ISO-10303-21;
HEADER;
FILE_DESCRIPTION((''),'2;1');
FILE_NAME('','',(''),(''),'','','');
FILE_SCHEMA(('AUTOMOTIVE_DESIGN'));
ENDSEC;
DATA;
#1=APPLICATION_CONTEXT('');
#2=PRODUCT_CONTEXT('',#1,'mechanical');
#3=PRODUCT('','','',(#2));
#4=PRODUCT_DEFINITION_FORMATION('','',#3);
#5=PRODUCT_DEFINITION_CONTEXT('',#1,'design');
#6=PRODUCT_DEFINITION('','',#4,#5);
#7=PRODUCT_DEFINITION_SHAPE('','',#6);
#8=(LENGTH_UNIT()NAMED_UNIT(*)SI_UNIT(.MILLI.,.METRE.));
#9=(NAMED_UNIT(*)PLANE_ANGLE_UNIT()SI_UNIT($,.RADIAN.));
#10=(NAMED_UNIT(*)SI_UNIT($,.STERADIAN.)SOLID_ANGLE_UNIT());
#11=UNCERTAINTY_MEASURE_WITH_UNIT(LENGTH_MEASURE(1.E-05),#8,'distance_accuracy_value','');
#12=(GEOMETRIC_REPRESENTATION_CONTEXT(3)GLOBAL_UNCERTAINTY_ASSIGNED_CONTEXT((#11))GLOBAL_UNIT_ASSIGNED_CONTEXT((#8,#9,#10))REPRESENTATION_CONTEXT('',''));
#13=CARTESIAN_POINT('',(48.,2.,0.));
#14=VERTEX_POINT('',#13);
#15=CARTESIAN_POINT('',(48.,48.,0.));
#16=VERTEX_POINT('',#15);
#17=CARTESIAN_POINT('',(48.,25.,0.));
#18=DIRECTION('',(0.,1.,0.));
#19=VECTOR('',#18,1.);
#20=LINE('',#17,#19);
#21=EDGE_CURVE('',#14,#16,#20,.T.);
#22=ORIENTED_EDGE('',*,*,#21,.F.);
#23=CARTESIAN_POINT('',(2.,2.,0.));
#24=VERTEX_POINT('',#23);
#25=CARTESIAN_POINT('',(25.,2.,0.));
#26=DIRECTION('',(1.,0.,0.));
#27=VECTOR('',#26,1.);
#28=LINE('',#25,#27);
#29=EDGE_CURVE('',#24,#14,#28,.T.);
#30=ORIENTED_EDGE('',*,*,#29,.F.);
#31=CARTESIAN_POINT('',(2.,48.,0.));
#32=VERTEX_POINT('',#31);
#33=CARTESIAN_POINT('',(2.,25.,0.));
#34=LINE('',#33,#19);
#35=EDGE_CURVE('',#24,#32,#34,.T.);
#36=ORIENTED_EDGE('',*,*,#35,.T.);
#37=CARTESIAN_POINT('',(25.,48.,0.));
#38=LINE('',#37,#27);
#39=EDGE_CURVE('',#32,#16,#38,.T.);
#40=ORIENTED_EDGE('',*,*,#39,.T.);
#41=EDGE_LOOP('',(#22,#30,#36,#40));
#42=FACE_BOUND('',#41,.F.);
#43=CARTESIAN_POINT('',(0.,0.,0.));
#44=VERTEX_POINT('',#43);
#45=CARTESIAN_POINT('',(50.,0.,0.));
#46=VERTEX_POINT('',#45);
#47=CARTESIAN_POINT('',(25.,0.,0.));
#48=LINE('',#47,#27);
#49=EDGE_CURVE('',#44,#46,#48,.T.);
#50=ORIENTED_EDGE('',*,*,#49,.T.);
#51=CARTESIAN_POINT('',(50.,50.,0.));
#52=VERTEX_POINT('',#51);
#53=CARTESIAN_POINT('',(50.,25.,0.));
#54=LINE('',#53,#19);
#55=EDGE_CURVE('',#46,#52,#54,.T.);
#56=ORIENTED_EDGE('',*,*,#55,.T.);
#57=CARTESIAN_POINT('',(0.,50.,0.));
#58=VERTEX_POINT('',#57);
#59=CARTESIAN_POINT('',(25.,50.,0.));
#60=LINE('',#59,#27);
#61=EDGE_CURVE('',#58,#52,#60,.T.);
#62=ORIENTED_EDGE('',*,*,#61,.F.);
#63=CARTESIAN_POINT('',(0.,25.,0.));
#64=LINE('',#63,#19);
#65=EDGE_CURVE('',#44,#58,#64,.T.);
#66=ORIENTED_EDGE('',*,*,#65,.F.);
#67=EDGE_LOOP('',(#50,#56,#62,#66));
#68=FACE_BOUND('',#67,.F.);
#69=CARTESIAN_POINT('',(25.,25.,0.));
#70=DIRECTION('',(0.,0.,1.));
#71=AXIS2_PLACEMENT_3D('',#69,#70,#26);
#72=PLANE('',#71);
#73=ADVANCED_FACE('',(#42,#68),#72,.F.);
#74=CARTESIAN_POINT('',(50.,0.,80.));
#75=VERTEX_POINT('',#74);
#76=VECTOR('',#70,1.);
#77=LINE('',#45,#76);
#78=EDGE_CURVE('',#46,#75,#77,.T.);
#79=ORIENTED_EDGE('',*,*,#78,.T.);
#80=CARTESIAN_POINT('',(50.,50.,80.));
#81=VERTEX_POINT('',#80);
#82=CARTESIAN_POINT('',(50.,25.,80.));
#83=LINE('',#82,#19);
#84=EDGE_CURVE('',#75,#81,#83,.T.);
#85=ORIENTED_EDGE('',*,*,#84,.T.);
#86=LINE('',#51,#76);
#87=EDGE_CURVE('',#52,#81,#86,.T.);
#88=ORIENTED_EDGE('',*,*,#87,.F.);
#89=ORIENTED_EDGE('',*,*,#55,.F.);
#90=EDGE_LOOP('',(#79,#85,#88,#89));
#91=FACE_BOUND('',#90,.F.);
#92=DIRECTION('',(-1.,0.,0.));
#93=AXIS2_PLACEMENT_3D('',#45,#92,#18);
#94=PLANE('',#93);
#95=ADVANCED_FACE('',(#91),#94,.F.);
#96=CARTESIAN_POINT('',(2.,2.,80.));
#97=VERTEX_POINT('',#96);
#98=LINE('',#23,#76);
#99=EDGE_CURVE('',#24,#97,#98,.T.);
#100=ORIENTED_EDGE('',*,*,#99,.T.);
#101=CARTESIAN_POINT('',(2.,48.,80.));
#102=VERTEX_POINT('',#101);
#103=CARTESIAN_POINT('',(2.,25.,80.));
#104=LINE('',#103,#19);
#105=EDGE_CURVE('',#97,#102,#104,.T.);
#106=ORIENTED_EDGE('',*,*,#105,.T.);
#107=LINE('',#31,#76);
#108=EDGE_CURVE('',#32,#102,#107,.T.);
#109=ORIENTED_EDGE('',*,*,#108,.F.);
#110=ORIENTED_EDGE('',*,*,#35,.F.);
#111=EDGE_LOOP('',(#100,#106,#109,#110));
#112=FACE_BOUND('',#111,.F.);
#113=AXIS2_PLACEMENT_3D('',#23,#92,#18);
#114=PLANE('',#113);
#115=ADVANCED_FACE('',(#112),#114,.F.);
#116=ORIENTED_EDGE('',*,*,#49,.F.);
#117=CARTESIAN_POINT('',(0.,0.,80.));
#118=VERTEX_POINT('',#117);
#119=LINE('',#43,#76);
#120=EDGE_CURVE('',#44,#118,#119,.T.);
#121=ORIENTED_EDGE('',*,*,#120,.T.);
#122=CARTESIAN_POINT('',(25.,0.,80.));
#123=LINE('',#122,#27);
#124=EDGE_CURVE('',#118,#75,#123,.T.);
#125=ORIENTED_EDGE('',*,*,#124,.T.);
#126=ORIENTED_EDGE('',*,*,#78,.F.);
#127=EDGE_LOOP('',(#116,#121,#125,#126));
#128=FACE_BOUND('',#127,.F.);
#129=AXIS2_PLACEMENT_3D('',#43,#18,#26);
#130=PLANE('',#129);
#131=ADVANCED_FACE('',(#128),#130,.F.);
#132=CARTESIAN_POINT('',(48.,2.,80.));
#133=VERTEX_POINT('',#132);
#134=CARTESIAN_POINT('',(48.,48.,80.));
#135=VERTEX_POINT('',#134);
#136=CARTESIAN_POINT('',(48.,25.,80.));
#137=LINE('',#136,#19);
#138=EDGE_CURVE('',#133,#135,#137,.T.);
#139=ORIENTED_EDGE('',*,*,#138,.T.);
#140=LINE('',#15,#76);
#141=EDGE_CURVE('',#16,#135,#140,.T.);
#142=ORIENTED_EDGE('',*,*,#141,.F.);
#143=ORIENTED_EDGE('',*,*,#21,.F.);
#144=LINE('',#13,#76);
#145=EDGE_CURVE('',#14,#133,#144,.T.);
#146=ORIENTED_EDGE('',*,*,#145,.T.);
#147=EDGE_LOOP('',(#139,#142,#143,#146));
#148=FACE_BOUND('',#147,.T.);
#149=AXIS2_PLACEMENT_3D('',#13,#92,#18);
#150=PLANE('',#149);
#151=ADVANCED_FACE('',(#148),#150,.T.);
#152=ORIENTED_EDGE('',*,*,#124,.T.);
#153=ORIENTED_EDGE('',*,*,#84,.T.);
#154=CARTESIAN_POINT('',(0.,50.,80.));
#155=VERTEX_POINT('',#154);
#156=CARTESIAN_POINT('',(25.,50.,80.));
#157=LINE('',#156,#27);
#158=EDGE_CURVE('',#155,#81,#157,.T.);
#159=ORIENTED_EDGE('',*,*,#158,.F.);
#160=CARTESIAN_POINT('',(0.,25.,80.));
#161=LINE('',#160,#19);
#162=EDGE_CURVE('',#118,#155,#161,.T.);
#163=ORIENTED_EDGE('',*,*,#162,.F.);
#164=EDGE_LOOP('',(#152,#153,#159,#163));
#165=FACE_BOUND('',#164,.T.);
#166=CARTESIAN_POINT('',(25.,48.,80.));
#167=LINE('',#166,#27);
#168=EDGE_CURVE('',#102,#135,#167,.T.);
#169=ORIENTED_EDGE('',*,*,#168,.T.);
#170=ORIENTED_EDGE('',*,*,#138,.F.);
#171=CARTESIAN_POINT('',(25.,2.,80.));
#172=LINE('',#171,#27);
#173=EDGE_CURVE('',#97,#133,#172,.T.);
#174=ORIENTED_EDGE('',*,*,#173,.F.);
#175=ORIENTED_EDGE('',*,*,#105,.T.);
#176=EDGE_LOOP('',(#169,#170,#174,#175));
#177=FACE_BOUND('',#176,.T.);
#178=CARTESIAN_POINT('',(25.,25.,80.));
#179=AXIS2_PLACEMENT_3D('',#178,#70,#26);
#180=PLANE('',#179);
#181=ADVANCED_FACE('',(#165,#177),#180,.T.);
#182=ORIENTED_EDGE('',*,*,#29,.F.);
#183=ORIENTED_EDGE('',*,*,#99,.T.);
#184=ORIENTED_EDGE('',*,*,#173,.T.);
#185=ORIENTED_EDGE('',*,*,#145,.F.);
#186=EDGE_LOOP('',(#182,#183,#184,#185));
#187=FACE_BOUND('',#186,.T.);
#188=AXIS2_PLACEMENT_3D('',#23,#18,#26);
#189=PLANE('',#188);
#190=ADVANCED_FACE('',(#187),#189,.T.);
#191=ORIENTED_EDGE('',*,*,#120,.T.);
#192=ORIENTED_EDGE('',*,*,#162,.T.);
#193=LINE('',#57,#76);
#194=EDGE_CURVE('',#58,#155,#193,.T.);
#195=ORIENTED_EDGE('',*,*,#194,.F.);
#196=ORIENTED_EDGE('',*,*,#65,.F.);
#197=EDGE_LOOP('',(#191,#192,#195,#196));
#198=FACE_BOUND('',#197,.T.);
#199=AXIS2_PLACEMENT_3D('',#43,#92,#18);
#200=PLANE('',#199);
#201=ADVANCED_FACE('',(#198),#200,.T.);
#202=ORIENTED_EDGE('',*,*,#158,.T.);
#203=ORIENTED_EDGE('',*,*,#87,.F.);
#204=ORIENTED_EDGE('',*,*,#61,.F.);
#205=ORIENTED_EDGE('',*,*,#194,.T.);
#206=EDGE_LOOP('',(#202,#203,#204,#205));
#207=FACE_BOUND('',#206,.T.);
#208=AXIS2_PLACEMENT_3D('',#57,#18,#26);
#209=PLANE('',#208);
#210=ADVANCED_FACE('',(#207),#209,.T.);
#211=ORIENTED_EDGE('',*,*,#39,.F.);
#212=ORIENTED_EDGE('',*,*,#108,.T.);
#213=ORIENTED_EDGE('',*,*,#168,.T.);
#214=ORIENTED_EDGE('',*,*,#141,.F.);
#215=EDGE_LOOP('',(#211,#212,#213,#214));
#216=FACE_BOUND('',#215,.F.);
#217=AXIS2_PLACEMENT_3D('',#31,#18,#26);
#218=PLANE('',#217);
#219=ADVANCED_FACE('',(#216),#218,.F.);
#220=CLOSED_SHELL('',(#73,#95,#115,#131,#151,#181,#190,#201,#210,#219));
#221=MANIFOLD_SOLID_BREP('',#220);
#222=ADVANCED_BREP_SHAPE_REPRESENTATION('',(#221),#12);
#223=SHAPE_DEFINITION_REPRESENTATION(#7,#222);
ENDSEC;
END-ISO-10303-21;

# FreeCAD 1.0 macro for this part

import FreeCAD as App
import Part
import Sketcher
Q = App.Units.Quantity

doc = App.newDocument("Part")
params = doc.addObject("Spreadsheet::Sheet", "Params")
for row, (alias, value) in enumerate([
    ("sketch1_width", "46 mm"),
    ("pad1_length", "80 mm"),
    ("sketch2_width", "50 mm"),
    ("pad2_length", "80 mm"),
], start=1):
    params.set(f"A{row}", alias)
    params.set(f"B{row}", "=" + value)
    params.setAlias(f"B{row}", alias)

body = doc.addObject("PartDesign::Body", "Body")

# Sketch on XY plane
sketch1 = body.newObject("Sketcher::SketchObject", "Sketch")
sketch1.AttachmentSupport = (doc.getObject("XY_Plane"), [""])
sketch1.MapMode = "FlatFace"
sketch1.addGeometry([
    Part.LineSegment(App.Vector(2, 48, 0), App.Vector(2, 2, 0)),
    Part.LineSegment(App.Vector(2, 2, 0), App.Vector(48, 2, 0)),
    Part.LineSegment(App.Vector(48, 2, 0), App.Vector(48, 48, 0)),
    Part.LineSegment(App.Vector(48, 48, 0), App.Vector(2, 48, 0)),
], False)
sketch1.addConstraint([
    Sketcher.Constraint("Coincident", 0, 2, 1, 1),
    Sketcher.Constraint("Coincident", 1, 2, 2, 1),
    Sketcher.Constraint("Coincident", 2, 2, 3, 1),
    Sketcher.Constraint("Coincident", 3, 2, 0, 1),
    Sketcher.Constraint("Vertical", 0),
    Sketcher.Constraint("Horizontal", 1),
    Sketcher.Constraint("Vertical", 2),
    Sketcher.Constraint("Horizontal", 3),
    Sketcher.Constraint("Equal", 3, 0),
    Sketcher.Constraint("DistanceX", 1, 1, 1, 2, Q("46 mm")),
    Sketcher.Constraint("DistanceX", -1, 1, 0, 2, Q("2 mm")),
    Sketcher.Constraint("DistanceY", -1, 1, 0, 2, Q("2 mm")),
])
sketch1.setExpression("Constraints[9]", "Params.sketch1_width")
pad1 = body.newObject("PartDesign::Pad", "Pad")
pad1.Profile = sketch1
pad1.setExpression("Length", "Params.pad1_length")
body2 = doc.addObject("PartDesign::Body", "Body001")

# Sketch on XY plane
sketch2 = body2.newObject("Sketcher::SketchObject", "Sketch001")
sketch2.AttachmentSupport = (doc.getObject("XY_Plane001"), [""])
sketch2.MapMode = "FlatFace"
sketch2.addGeometry([
    Part.LineSegment(App.Vector(0, 50, 0), App.Vector(0, 0, 0)),
    Part.LineSegment(App.Vector(0, 0, 0), App.Vector(50, 0, 0)),
    Part.LineSegment(App.Vector(50, 0, 0), App.Vector(50, 50, 0)),
    Part.LineSegment(App.Vector(50, 50, 0), App.Vector(0, 50, 0)),
], False)
sketch2.addConstraint([
    Sketcher.Constraint("Coincident", 0, 2, 1, 1),
    Sketcher.Constraint("Coincident", 1, 2, 2, 1),
    Sketcher.Constraint("Coincident", 2, 2, 3, 1),
    Sketcher.Constraint("Coincident", 3, 2, 0, 1),
    Sketcher.Constraint("Vertical", 0),
    Sketcher.Constraint("Horizontal", 1),
    Sketcher.Constraint("Vertical", 2),
    Sketcher.Constraint("Horizontal", 3),
    Sketcher.Constraint("Coincident", 0, 2, -1, 1),
    Sketcher.Constraint("Equal", 3, 0),
    Sketcher.Constraint("DistanceX", 1, 1, 1, 2, Q("50 mm")),
])
sketch2.setExpression("Constraints[10]", "Params.sketch2_width")
pad2 = body2.newObject("PartDesign::Pad", "Pad001")
pad2.Profile = sketch2
pad2.setExpression("Length", "Params.pad2_length")
doc.recompute()

boolean = body2.newObject("PartDesign::Boolean", "Boolean")
boolean.Type = "Cut"
boolean.addObjects([body])

doc.recompute()
